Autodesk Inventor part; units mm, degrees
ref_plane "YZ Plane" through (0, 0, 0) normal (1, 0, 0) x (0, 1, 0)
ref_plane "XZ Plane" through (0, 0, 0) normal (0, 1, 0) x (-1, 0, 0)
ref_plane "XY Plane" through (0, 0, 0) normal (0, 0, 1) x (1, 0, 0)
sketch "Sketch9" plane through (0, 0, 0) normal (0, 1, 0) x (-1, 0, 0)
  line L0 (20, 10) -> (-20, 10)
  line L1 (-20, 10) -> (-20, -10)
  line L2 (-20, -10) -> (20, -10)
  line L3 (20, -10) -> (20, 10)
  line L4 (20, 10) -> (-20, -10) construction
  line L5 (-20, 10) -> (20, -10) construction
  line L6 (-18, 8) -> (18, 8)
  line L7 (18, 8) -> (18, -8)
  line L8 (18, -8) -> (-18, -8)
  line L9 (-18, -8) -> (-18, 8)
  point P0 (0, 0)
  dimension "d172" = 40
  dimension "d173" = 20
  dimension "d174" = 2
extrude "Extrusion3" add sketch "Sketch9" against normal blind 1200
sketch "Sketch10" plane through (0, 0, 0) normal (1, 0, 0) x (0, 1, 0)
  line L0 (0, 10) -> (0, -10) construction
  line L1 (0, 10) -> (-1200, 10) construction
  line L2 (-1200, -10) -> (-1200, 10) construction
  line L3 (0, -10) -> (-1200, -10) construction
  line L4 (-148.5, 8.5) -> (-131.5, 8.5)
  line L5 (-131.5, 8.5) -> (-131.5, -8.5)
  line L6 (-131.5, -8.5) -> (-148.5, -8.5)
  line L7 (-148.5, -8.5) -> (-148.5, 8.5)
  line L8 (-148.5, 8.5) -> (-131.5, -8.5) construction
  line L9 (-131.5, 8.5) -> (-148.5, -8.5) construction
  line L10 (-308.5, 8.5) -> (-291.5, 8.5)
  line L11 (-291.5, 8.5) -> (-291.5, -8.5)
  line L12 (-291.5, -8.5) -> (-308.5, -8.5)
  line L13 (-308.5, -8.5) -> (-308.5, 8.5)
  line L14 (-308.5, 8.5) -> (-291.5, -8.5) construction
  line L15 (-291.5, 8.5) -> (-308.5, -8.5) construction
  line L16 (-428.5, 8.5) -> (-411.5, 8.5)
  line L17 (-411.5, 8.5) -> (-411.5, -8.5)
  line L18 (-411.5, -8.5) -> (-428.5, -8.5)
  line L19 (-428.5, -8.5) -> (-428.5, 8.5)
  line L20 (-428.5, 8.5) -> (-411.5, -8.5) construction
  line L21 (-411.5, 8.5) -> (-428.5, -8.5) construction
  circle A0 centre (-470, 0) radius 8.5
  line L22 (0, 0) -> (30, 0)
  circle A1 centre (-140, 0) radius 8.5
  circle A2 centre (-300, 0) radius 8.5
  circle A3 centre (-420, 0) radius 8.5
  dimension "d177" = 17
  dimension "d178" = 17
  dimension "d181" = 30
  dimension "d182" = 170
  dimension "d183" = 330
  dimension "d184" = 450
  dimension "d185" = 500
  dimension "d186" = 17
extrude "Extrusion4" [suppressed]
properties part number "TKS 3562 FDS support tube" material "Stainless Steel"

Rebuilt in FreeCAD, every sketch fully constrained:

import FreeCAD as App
import Part
import Sketcher
from FreeCAD import Vector

doc = App.newDocument("Part")
body = doc.addObject("PartDesign::Body", "Body")

# Sketch on XZ plane
sketch1 = doc.addObject("Sketcher::SketchObject", "Sketch")
body.addObject(sketch1)
sketch1.AttachmentSupport = (doc.XZ_Plane, [""])
sketch1.MapMode = "FlatFace"
sketch1.addGeometry([
    Part.LineSegment(Vector(-20, -10, 0), Vector(-20, 10, 0)),  # 0
    Part.LineSegment(Vector(-20, 10, 0), Vector(20, 10, 0)),  # 1
    Part.LineSegment(Vector(20, 10, 0), Vector(20, -10, 0)),  # 2
    Part.LineSegment(Vector(20, -10, 0), Vector(-20, -10, 0)),  # 3
    Part.LineSegment(Vector(18, -8, 0), Vector(18, 8, 0)),  # 4
    Part.LineSegment(Vector(18, 8, 0), Vector(-18, 8, 0)),  # 5
    Part.LineSegment(Vector(-18, 8, 0), Vector(-18, -8, 0)),  # 6
    Part.LineSegment(Vector(-18, -8, 0), Vector(18, -8, 0)),  # 7
], False)
sketch1.addConstraint([
    Sketcher.Constraint("Coincident", 0, 2, 1, 1),
    Sketcher.Constraint("Coincident", 1, 2, 2, 1),
    Sketcher.Constraint("Coincident", 2, 2, 3, 1),
    Sketcher.Constraint("Coincident", 3, 2, 0, 1),
    Sketcher.Constraint("Coincident", 4, 2, 5, 1),
    Sketcher.Constraint("Coincident", 5, 2, 6, 1),
    Sketcher.Constraint("Coincident", 6, 2, 7, 1),
    Sketcher.Constraint("Coincident", 7, 2, 4, 1),
    Sketcher.Constraint("Vertical", 0),
    Sketcher.Constraint("Horizontal", 1),
    Sketcher.Constraint("Vertical", 2),
    Sketcher.Constraint("Horizontal", 3),
    Sketcher.Constraint("Vertical", 4),
    Sketcher.Constraint("Horizontal", 5),
    Sketcher.Constraint("Vertical", 6),
    Sketcher.Constraint("Horizontal", 7),
    Sketcher.Constraint("Symmetric", 0, 2, 2, 2, -1, 1),
    Sketcher.Constraint("Symmetric", 4, 2, 6, 2, -1, 1),
    Sketcher.Constraint("DistanceX", 1, 1, 1, 2, 40.0),
    Sketcher.Constraint("DistanceY", 0, 1, 0, 2, 20.0),
    Sketcher.Constraint("DistanceX", 4, 2, 1, 2, 2.0),
    Sketcher.Constraint("DistanceY", 4, 2, 1, 2, 2.0),
])
pad1 = doc.addObject("PartDesign::Pad", "Pad")
body.addObject(pad1)
pad1.Profile = sketch1
pad1.Length = 1200

doc.recompute()
